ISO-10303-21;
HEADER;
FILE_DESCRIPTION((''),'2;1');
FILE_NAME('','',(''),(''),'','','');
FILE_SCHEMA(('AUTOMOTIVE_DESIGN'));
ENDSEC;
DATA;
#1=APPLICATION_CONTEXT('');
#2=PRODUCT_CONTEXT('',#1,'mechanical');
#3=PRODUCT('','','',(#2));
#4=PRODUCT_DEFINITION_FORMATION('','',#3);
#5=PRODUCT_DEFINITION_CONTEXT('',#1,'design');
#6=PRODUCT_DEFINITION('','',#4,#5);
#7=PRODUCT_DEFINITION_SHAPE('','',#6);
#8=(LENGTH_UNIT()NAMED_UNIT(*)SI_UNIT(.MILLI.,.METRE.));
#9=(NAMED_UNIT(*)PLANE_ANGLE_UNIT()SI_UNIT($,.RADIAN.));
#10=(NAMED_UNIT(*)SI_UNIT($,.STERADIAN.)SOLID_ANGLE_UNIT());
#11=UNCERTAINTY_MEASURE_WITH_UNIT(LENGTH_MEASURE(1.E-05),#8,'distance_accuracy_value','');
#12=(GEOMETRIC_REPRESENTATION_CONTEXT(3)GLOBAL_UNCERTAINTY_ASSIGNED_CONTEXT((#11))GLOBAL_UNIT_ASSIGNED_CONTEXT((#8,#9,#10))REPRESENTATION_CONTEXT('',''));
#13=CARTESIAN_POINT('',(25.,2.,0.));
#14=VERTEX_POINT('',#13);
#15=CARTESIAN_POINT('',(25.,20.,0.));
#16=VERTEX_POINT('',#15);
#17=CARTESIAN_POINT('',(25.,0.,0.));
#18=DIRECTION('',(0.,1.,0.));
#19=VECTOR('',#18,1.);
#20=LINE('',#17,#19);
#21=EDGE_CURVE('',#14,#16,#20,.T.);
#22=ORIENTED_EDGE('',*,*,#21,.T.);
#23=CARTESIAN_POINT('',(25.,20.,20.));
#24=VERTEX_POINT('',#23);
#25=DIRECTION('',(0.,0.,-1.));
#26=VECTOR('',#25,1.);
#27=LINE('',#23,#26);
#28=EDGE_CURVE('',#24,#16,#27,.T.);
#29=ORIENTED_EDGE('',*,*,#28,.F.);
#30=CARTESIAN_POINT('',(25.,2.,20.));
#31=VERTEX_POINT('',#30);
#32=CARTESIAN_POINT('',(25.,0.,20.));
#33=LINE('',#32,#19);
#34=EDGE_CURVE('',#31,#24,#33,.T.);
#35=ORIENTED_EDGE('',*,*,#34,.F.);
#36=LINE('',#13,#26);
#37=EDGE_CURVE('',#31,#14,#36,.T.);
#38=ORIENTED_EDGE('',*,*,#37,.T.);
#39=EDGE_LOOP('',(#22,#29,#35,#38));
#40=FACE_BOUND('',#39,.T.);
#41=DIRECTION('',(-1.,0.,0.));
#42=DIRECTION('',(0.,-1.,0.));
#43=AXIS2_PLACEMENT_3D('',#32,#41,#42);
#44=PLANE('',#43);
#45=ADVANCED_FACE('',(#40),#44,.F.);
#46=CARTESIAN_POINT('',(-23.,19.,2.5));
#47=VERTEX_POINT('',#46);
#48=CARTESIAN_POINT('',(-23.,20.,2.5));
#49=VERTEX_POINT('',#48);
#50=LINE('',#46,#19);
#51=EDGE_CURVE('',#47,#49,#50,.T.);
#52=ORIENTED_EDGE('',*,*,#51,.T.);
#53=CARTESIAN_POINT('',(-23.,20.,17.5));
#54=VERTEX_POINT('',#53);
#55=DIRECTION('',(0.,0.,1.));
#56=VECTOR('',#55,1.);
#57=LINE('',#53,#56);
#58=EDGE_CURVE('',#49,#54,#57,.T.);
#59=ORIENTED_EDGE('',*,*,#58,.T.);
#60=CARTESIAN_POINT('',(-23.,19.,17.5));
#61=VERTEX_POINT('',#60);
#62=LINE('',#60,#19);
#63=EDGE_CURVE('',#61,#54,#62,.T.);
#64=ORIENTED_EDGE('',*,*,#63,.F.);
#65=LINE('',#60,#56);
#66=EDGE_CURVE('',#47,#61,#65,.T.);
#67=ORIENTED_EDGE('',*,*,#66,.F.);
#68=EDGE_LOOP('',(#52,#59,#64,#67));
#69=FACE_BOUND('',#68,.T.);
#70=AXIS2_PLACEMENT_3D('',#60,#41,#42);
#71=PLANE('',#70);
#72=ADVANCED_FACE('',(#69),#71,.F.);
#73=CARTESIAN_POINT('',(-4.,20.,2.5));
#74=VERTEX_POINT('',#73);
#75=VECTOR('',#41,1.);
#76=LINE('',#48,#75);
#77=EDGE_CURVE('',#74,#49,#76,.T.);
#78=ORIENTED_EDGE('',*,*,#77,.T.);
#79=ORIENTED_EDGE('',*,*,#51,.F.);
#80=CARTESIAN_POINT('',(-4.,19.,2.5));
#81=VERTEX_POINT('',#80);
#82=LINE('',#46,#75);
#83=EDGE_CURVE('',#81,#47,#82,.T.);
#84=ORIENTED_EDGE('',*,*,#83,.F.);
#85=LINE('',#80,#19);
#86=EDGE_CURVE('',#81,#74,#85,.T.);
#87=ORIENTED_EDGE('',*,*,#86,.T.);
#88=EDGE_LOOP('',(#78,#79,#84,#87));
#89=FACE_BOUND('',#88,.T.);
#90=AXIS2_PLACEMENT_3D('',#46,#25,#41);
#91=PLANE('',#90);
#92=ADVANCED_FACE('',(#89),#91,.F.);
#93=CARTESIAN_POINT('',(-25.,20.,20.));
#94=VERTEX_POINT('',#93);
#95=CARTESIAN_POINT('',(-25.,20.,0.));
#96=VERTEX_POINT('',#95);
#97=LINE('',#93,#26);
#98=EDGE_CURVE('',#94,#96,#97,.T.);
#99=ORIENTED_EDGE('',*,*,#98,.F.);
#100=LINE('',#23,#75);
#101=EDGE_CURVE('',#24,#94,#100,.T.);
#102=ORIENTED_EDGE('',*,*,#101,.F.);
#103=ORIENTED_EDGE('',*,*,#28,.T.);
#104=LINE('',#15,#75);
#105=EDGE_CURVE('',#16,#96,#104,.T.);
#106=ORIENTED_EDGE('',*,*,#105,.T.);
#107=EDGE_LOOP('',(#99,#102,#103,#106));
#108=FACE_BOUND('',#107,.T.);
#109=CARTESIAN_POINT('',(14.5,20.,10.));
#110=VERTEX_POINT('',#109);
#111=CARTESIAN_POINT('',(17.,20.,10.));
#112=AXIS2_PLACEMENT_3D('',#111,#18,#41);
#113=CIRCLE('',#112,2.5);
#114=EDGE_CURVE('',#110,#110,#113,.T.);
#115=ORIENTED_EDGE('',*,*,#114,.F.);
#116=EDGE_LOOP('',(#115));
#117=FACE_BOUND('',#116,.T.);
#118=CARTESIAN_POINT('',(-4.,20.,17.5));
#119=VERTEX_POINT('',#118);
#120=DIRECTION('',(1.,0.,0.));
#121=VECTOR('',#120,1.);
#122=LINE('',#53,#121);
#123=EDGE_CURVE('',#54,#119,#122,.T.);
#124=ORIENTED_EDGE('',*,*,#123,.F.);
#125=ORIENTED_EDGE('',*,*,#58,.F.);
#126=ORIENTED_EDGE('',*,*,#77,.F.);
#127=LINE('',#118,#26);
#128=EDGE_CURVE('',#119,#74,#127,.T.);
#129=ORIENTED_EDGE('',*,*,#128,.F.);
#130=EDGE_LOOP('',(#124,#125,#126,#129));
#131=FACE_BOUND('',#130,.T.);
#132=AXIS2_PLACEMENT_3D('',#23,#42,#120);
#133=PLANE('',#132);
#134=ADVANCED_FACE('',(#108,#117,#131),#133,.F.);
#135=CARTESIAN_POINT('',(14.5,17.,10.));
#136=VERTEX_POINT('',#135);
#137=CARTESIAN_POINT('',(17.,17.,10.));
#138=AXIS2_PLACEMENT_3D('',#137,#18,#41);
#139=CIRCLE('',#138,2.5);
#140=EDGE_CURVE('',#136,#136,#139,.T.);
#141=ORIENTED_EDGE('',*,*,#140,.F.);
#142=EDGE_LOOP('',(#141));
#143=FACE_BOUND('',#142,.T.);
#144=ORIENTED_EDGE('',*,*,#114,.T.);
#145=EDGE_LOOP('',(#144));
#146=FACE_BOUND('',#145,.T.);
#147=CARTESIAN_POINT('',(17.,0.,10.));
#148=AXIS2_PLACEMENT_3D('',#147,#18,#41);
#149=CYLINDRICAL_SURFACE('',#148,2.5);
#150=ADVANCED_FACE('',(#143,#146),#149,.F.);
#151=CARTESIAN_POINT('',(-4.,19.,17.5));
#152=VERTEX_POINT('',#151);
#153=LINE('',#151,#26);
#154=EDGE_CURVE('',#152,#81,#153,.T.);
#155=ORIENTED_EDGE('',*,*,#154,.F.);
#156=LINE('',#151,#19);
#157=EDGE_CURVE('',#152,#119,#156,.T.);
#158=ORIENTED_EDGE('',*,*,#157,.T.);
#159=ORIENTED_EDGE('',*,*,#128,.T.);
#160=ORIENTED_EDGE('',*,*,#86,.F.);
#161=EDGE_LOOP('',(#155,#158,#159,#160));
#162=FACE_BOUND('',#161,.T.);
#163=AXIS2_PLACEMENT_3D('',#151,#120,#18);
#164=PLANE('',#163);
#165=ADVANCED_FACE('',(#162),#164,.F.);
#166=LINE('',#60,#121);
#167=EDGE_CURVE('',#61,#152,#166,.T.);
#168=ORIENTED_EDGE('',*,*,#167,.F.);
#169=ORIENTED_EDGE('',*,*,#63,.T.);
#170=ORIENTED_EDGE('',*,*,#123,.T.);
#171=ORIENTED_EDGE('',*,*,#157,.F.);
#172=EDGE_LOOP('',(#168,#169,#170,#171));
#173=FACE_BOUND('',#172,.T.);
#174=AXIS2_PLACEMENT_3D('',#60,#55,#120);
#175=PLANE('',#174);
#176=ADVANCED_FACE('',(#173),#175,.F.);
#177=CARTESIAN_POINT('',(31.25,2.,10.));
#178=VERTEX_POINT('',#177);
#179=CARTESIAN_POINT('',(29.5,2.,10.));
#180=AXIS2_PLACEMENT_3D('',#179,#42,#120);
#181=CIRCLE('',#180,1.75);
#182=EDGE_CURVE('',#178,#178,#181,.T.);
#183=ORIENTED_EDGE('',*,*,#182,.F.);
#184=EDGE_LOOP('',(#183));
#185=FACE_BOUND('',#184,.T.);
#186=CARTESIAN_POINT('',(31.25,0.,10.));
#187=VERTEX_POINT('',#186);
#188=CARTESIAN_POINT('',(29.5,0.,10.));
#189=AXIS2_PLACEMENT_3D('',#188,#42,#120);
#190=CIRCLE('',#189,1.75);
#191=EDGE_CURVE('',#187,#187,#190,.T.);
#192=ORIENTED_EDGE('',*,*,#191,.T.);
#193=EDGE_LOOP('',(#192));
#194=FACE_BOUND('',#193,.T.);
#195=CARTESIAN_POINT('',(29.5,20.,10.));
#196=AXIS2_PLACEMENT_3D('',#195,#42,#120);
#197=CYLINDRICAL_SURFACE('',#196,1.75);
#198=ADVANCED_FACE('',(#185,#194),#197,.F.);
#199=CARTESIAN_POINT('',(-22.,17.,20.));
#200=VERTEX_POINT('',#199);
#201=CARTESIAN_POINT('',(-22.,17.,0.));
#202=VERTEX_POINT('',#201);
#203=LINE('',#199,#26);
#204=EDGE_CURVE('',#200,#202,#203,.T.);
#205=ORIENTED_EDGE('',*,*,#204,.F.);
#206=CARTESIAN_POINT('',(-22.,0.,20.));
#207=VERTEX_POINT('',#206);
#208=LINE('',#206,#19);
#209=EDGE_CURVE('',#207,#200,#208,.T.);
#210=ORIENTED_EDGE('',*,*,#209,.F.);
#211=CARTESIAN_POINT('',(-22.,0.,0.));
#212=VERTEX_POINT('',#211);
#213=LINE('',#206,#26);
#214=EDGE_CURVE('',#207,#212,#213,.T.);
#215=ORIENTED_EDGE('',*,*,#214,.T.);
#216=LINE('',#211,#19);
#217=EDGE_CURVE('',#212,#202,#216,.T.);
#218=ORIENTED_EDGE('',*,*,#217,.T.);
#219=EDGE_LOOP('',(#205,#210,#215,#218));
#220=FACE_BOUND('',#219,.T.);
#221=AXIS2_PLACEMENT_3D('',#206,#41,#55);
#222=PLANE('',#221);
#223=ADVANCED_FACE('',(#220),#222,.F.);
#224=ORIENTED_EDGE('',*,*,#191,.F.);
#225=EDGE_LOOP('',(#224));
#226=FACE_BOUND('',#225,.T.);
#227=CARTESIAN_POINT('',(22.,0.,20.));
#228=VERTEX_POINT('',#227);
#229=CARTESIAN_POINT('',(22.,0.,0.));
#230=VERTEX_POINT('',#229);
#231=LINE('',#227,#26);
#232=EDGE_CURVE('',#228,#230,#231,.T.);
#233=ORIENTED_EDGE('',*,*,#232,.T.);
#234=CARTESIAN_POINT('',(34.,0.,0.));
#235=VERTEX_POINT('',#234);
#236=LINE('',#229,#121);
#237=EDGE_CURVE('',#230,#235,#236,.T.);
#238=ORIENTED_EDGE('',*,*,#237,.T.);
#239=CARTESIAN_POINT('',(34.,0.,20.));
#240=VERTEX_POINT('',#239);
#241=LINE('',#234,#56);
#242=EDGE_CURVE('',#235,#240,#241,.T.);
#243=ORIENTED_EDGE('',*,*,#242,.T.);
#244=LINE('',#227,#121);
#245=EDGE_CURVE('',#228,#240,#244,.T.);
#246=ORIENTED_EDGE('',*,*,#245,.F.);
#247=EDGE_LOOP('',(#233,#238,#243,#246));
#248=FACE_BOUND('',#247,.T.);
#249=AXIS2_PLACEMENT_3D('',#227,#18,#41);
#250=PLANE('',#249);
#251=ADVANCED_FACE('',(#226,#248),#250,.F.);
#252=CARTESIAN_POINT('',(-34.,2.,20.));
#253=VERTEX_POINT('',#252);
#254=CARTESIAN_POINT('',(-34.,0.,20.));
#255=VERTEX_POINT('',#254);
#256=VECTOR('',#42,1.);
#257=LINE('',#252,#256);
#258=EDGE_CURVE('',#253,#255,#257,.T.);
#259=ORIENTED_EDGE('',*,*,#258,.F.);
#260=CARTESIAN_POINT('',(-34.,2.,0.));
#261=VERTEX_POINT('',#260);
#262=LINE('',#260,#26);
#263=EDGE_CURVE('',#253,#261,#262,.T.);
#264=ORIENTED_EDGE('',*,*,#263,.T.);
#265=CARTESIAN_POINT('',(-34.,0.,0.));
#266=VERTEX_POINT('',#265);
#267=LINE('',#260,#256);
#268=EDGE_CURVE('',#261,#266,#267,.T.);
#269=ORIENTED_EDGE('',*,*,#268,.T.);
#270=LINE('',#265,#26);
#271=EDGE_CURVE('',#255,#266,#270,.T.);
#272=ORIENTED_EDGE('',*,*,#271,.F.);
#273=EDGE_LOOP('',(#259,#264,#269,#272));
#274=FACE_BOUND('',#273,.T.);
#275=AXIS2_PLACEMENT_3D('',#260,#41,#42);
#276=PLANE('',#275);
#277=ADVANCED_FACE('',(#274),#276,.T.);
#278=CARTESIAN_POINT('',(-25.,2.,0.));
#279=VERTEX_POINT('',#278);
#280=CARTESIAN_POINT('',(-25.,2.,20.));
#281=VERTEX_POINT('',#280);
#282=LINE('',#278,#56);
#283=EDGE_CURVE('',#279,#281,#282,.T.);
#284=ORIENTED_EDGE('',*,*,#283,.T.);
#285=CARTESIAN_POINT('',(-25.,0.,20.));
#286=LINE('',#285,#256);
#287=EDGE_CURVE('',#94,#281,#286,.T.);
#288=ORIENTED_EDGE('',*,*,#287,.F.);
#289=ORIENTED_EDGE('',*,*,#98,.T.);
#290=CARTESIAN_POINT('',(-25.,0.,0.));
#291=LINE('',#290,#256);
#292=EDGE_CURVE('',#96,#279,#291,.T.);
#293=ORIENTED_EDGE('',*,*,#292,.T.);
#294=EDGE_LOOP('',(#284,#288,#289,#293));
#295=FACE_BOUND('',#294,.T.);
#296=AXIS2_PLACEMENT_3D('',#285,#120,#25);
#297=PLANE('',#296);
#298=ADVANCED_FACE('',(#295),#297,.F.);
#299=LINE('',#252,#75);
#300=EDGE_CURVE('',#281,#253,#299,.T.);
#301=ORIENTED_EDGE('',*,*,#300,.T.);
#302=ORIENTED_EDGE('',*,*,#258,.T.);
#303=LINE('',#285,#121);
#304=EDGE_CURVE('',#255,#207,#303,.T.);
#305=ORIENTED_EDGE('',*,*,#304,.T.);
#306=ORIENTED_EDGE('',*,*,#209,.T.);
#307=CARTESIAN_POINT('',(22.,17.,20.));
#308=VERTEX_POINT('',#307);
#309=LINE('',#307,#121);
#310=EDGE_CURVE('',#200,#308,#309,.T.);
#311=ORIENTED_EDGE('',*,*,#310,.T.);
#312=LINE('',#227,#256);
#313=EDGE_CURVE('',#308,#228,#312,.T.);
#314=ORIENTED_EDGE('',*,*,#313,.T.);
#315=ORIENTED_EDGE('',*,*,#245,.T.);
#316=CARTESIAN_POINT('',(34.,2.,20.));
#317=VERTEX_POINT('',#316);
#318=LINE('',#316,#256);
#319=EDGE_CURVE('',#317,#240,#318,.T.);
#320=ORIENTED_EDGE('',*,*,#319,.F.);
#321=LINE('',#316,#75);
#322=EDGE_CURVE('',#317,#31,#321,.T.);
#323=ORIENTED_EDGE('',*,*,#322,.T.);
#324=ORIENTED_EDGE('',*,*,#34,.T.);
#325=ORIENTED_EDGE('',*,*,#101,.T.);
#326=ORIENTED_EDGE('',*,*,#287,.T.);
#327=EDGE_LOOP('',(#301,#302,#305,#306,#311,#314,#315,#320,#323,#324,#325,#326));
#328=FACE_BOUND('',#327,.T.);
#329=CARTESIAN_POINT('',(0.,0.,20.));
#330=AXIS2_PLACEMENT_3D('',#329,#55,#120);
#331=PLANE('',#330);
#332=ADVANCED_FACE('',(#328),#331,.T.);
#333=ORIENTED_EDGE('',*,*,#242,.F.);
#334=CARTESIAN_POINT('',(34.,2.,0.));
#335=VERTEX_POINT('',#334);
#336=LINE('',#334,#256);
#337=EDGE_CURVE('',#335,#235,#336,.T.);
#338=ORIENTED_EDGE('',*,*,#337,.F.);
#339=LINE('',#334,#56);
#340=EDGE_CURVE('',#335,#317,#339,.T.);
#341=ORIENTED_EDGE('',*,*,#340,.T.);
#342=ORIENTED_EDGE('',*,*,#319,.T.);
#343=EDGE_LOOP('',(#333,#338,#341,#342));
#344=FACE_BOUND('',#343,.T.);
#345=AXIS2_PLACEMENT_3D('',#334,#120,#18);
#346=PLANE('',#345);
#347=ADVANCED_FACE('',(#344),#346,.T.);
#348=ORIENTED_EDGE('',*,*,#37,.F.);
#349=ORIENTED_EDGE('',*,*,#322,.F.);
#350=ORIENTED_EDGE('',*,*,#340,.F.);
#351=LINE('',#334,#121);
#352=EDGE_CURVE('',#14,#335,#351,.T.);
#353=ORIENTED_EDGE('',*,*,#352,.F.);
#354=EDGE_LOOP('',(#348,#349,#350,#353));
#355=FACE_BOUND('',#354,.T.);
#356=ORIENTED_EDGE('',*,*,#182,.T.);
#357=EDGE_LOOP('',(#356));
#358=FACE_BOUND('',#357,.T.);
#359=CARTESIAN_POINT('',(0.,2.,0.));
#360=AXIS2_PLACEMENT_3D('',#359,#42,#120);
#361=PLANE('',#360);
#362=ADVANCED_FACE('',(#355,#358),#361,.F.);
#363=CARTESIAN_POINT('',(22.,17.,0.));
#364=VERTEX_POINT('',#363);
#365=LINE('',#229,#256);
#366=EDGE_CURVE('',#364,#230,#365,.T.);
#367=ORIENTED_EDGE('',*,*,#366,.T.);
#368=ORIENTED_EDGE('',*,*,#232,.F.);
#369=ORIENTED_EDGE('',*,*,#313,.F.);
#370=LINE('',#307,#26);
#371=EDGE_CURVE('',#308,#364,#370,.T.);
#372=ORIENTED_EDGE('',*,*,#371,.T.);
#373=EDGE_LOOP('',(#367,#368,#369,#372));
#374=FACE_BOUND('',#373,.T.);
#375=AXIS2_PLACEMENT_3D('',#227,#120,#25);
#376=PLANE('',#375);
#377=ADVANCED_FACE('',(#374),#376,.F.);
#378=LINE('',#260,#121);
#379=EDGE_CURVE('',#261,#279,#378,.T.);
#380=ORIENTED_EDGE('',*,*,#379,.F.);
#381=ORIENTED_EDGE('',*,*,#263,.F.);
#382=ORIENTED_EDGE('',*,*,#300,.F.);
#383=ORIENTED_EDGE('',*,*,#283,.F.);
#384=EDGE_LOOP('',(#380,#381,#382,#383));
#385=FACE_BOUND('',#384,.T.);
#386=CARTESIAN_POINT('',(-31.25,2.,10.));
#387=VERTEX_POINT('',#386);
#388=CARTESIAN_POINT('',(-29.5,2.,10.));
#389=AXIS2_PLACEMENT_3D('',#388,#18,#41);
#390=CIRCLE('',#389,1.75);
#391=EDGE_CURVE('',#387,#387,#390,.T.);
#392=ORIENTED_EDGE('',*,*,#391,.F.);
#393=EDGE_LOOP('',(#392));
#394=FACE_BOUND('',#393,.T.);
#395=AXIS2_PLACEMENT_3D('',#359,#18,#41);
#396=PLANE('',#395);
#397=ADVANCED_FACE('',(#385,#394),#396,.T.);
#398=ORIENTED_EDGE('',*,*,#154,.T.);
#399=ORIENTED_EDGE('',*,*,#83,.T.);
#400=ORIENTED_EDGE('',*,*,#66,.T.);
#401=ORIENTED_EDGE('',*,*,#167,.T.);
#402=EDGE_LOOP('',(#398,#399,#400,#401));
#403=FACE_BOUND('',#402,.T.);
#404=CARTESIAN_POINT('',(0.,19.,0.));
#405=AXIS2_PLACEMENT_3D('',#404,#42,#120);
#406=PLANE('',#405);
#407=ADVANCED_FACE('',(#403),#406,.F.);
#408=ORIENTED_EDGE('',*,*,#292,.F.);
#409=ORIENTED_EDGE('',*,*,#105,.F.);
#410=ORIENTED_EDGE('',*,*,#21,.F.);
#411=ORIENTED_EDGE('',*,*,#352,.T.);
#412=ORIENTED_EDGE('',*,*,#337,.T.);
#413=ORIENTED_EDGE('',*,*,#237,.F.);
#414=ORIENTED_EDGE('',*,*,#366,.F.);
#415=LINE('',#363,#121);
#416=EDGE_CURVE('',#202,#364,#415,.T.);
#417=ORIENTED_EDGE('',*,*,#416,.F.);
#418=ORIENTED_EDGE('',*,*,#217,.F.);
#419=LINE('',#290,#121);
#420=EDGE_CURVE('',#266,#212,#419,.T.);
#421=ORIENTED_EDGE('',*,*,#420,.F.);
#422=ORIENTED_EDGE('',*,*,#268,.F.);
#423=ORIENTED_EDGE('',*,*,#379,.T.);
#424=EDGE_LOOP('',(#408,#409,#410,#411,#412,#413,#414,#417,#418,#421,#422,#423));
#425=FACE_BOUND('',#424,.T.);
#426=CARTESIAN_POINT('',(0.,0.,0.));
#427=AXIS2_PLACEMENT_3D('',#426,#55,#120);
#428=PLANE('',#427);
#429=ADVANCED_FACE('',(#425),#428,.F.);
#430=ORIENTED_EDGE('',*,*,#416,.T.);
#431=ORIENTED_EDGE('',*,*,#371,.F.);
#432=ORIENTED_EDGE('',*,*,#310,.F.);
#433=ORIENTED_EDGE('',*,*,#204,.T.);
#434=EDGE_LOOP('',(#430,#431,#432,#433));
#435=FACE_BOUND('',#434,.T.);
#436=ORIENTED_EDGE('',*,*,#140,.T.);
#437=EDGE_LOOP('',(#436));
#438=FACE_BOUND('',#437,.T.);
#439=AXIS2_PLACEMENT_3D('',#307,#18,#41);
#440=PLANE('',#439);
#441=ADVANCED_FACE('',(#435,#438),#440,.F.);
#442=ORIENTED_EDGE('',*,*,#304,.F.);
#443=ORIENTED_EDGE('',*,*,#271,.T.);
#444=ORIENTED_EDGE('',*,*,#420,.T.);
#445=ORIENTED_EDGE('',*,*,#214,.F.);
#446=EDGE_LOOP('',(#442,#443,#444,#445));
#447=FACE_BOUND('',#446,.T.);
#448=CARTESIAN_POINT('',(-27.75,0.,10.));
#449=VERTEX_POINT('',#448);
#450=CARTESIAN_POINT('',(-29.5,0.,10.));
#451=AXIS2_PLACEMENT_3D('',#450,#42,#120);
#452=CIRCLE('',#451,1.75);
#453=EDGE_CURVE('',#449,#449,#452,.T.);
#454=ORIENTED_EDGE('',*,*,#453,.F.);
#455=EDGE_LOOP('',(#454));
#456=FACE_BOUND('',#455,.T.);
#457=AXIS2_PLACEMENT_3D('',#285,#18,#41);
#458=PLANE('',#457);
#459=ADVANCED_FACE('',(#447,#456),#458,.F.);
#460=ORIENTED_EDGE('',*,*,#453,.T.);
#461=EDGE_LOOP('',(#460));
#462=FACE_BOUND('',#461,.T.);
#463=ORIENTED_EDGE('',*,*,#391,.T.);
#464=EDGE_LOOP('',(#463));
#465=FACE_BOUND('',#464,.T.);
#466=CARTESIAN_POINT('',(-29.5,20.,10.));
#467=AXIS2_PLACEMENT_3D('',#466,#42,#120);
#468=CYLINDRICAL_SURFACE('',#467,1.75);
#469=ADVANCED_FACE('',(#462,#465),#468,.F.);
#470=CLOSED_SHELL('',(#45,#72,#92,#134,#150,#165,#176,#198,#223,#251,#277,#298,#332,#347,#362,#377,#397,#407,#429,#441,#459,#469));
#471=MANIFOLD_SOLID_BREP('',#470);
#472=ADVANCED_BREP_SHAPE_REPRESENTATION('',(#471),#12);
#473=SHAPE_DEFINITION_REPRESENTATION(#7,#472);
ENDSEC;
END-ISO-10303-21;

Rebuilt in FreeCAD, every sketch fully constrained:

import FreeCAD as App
import Part
import Sketcher

V = App.Vector
Q = App.Units.Quantity


def add_polygon(sketch, points):
    """Adds a closed chain of lines whose ends are joined by coincident constraints."""
    first, n = sketch.GeometryCount, len(points)
    for a, b in zip(points, points[1:] + points[:1]):
        sketch.addGeometry(Part.LineSegment(App.Vector(*a, 0), App.Vector(*b, 0)), False)
    for i in range(n):
        sketch.addConstraint(Sketcher.Constraint("Coincident", first + i, 2, first + (i + 1) % n, 1))

doc = App.newDocument("Part")
body = doc.addObject("PartDesign::Body", "Body")

sketch1 = doc.addObject("Sketcher::SketchObject", "Sketch")
body.addObject(sketch1)
sketch1.AttachmentSupport = (doc.XY_Plane, [""])
sketch1.MapMode = "FlatFace"
add_polygon(sketch1, [(22, 17), (22, 0), (25, 0), (25, 20), (-25, 20), (-25, 0), (-22, 0), (-22, 17)])
sketch1.addConstraint([
    Sketcher.Constraint("Vertical", 0),
    Sketcher.Constraint("Horizontal", 1),
    Sketcher.Constraint("Vertical", 2),
    Sketcher.Constraint("Horizontal", 3),
    Sketcher.Constraint("Vertical", 4),
    Sketcher.Constraint("Horizontal", 5),
    Sketcher.Constraint("Vertical", 6),
    Sketcher.Constraint("Horizontal", 7),
    Sketcher.Constraint("Symmetric", 1, 2, 4, 2, -1, 1),
    Sketcher.Constraint("Symmetric", 0, 2, 5, 2, -2),
    Sketcher.Constraint("DistanceX", 1, 1, 1, 2, Q("3 mm")),
    Sketcher.Constraint("DistanceX", 3, 2, 3, 1, Q("50 mm")),
    Sketcher.Constraint("DistanceY", 0, 2, 0, 1, Q("17 mm")),
    Sketcher.Constraint("DistanceY", 2, 1, 2, 2, Q("20 mm")),
])
pad1 = doc.addObject("PartDesign::Pad", "Pad")
body.addObject(pad1)
pad1.Profile = sketch1
pad1.Length = 20

sketch2 = doc.addObject("Sketcher::SketchObject", "Sketch001")
body.addObject(sketch2)
sketch2.AttachmentSupport = (doc.XZ_Plane, [""])
sketch2.MapMode = "FlatFace"
sketch2.AttachmentOffset = App.Placement(V(0, 0, -20), App.Rotation())
add_polygon(sketch2, [(-23, 2), (-23, 18), (-4, 18), (-4, 2)])
sketch2.addConstraint([
    Sketcher.Constraint("Vertical", 0),
    Sketcher.Constraint("Horizontal", 1),
    Sketcher.Constraint("Vertical", 2),
    Sketcher.Constraint("Horizontal", 3),
    Sketcher.Constraint("DistanceX", 1, 1, 1, 2, Q("19 mm")),
    Sketcher.Constraint("DistanceY", 0, 1, 0, 2, Q("15 mm")),
    Sketcher.Constraint("DistanceX", 0, 2, -1, 1, Q("23 mm")),
    Sketcher.Constraint("DistanceY", -1, 1, 0, 2, Q("17.5 mm")),
])
pocket1 = doc.addObject("PartDesign::Pocket", "Pocket")
body.addObject(pocket1)
pocket1.Profile = sketch2
pocket1.Length = 1
pocket1.Reversed = True

sketch3 = doc.addObject("Sketcher::SketchObject", "Sketch002")
body.addObject(sketch3)
sketch3.AttachmentSupport = (doc.XZ_Plane, [""])
sketch3.MapMode = "FlatFace"
sketch3.AttachmentOffset = App.Placement(V(0, 0, -20), App.Rotation())
sketch3.addGeometry(Part.Circle(V(17, 10, 0), V(0, 0, 1), 2.5), False)
sketch3.addConstraint([
    Sketcher.Constraint("Diameter", 0, Q("5 mm")),
    Sketcher.Constraint("DistanceX", -1, 1, 0, 3, Q("17 mm")),
    Sketcher.Constraint("DistanceY", -1, 1, 0, 3, Q("10 mm")),
])
pocket2 = doc.addObject("PartDesign::Pocket", "Pocket001")
body.addObject(pocket2)
pocket2.Profile = sketch3
pocket2.Type = "ThroughAll"
pocket2.Reversed = True

sketch4 = doc.addObject("Sketcher::SketchObject", "Sketch003")
body.addObject(sketch4)
sketch4.AttachmentSupport = (doc.XZ_Plane, [""])
sketch4.MapMode = "FlatFace"
add_polygon(sketch4, [(-34, 20), (-34, 0), (-25, 0), (-25, 20)])
add_polygon(sketch4, [(25, 20), (25, 0), (34, 0), (34, 20)])
sketch4.addConstraint([
    Sketcher.Constraint("Vertical", 0),
    Sketcher.Constraint("Horizontal", 1),
    Sketcher.Constraint("Vertical", 2),
    Sketcher.Constraint("Horizontal", 3),
    Sketcher.Constraint("Vertical", 4),
    Sketcher.Constraint("Horizontal", 5),
    Sketcher.Constraint("Vertical", 6),
    Sketcher.Constraint("Horizontal", 7),
    Sketcher.Constraint("Symmetric", 1, 2, 4, 2, -1, 1),
    Sketcher.Constraint("Symmetric", 0, 2, 5, 2, -2),
    Sketcher.Constraint("Horizontal", 3, 2, 6, 2),
    Sketcher.Constraint("DistanceX", 1, 1, 1, 2, Q("9 mm")),
    Sketcher.Constraint("DistanceY", 0, 2, 0, 1, Q("20 mm")),
    Sketcher.Constraint("DistanceX", 0, 2, -1, 1, Q("34 mm")),
])
pad2 = doc.addObject("PartDesign::Pad", "Pad001")
body.addObject(pad2)
pad2.Profile = sketch4
pad2.Length = 2
pad2.Reversed = True

sketch5 = doc.addObject("Sketcher::SketchObject", "Sketch004")
body.addObject(sketch5)
sketch5.AttachmentSupport = (doc.XZ_Plane, [""])
sketch5.MapMode = "FlatFace"
sketch5.addGeometry([
    Part.Circle(V(-29.5, 10, 0), V(0, 0, 1), 1.8),
    Part.Circle(V(29.5, 10, 0), V(0, 0, 1), 1.8),
], False)
sketch5.addConstraint([
    Sketcher.Constraint("Equal", 0, 1),
    Sketcher.Constraint("Symmetric", 0, 3, 1, 3, -2),
    Sketcher.Constraint("Diameter", 0, Q("3.5 mm")),
    Sketcher.Constraint("DistanceY", -1, 1, 0, 3, Q("10 mm")),
    Sketcher.Constraint("DistanceX", 0, 3, 1, 3, Q("59 mm")),
])
pocket3 = doc.addObject("PartDesign::Pocket", "Pocket002")
body.addObject(pocket3)
pocket3.Profile = sketch5
pocket3.Type = "ThroughAll"

doc.recompute()
